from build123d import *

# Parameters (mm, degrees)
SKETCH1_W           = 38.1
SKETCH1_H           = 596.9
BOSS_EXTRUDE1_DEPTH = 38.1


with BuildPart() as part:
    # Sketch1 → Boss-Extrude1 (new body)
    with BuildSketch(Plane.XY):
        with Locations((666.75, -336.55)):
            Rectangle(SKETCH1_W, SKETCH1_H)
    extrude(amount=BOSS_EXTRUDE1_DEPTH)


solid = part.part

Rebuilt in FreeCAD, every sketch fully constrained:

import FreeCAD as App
import Part
import Sketcher
Q = App.Units.Quantity

doc = App.newDocument("Part")
body = doc.addObject("PartDesign::Body", "Body")

# Sketch on XY plane
sketch1 = doc.addObject("Sketcher::SketchObject", "Sketch")
body.addObject(sketch1)
sketch1.AttachmentSupport = (doc.XY_Plane, [""])
sketch1.MapMode = "FlatFace"
sketch1.addGeometry([
    Part.LineSegment(App.Vector(647.7, -38.1, 0), App.Vector(647.7, -635, 0)),
    Part.LineSegment(App.Vector(647.7, -635, 0), App.Vector(685.8, -635, 0)),
    Part.LineSegment(App.Vector(685.8, -635, 0), App.Vector(685.8, -38.1, 0)),
    Part.LineSegment(App.Vector(685.8, -38.1, 0), App.Vector(647.7, -38.1, 0)),
], False)
sketch1.addConstraint([
    Sketcher.Constraint("Coincident", 0, 2, 1, 1),
    Sketcher.Constraint("Coincident", 1, 2, 2, 1),
    Sketcher.Constraint("Coincident", 2, 2, 3, 1),
    Sketcher.Constraint("Coincident", 3, 2, 0, 1),
    Sketcher.Constraint("Vertical", 0),
    Sketcher.Constraint("Horizontal", 1),
    Sketcher.Constraint("Vertical", 2),
    Sketcher.Constraint("Horizontal", 3),
    Sketcher.Constraint("DistanceX", 1, 1, 1, 2, Q("1.5 in")),
    Sketcher.Constraint("DistanceY", 0, 2, 0, 1, Q("23.5 in")),
    Sketcher.Constraint("DistanceY", 0, 2, -1, 1, Q("25 in")),
    Sketcher.Constraint("DistanceX", -1, 1, 1, 2, Q("27 in")),
])
pad1 = doc.addObject("PartDesign::Pad", "Pad")
body.addObject(pad1)
pad1.Profile = sketch1
pad1.Length = Q("1.5 in")

doc.recompute()
